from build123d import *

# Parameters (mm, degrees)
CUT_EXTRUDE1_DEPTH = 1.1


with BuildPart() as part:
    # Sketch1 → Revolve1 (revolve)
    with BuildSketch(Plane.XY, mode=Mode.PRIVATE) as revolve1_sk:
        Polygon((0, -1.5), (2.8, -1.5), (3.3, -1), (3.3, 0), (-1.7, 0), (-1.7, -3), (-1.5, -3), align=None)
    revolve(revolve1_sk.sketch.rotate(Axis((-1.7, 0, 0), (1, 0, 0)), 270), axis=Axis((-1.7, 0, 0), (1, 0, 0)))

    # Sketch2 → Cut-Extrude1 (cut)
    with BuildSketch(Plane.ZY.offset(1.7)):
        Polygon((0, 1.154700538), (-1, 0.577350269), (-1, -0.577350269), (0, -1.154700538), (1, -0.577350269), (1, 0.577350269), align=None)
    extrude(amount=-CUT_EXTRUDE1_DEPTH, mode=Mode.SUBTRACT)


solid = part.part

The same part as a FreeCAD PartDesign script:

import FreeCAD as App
import Part
import Sketcher
Q = App.Units.Quantity


def add_polygon(sketch, points):
    """Adds a closed chain of lines whose ends are joined by coincident constraints."""
    first, n = sketch.GeometryCount, len(points)
    for a, b in zip(points, points[1:] + points[:1]):
        sketch.addGeometry(Part.LineSegment(App.Vector(*a, 0), App.Vector(*b, 0)), False)
    for i in range(n):
        sketch.addConstraint(Sketcher.Constraint("Coincident", first + i, 2, first + (i + 1) % n, 1))

doc = App.newDocument("Part")
body = doc.addObject("PartDesign::Body", "Body")

sketch1 = doc.addObject("Sketcher::SketchObject", "Sketch")
body.addObject(sketch1)
sketch1.AttachmentSupport = (doc.XY_Plane, [""])
sketch1.MapMode = "FlatFace"
add_polygon(sketch1, [(0, -1.5), (2.8, -1.5), (3.3, -1), (3.3, 0), (-1.7, 0), (-1.7, -3), (-1.5, -3)])
sketch1.addConstraint(Sketcher.Constraint("Horizontal", 0))
sketch1.addConstraint(Sketcher.Constraint("Vertical", 2))
sketch1.addConstraint(Sketcher.Constraint("Horizontal", 3))
sketch1.addConstraint(Sketcher.Constraint("Vertical", 4))
sketch1.addConstraint(Sketcher.Constraint("Horizontal", 5))
sketch1.addConstraint(Sketcher.Constraint("PointOnObject", 2, 2, -1))
sketch1.addConstraint(Sketcher.Constraint("PointOnObject", 6, 2, -2))
sketch1.addConstraint(Sketcher.Constraint("Parallel", 1, 6))
sketch1.addConstraint(Sketcher.Constraint("DistanceX", 3, 2, 3, 1, Q("5 mm")))
sketch1.addConstraint(Sketcher.Constraint("DistanceY", 2, 1, 2, 2, Q("1 mm")))
sketch1.addConstraint(Sketcher.Constraint("DistanceY", 4, 2, 4, 1, Q("3 mm")))
sketch1.addConstraint(Sketcher.Constraint("Angle", 1, Q("45 deg")))
sketch1.addConstraint(Sketcher.Constraint("DistanceX", 0, 1, 0, 2, Q("2.8 mm")))
sketch1.addConstraint(Sketcher.Constraint("DistanceY", 0, 2, -1, 1, Q("1.5 mm")))
revolution = doc.addObject("PartDesign::Revolution", "Revolution")
body.addObject(revolution)
revolution.Profile = sketch1
revolution.ReferenceAxis = (sketch1, ["H_Axis"])
revolution.Angle = 360

sketch2 = doc.addObject("Sketcher::SketchObject", "Sketch001")
body.addObject(sketch2)
sketch2.AttachmentSupport = (doc.YZ_Plane, [""])
sketch2.MapMode = "FlatFace"
sketch2.AttachmentOffset = App.Placement(App.Vector(0, 0, -1.7), App.Rotation())
add_polygon(sketch2, [(1.2, 0), (0.6, -1), (-0.6, -1), (-1.2, 0), (-0.6, 1), (0.6, 1)])
sketch2.addConstraint(Sketcher.Constraint("Horizontal", 1))
sketch2.addConstraint(Sketcher.Constraint("Horizontal", 4))
sketch2.addConstraint(Sketcher.Constraint("Symmetric", 0, 2, 3, 2, -1, 1))
sketch2.addConstraint(Sketcher.Constraint("Symmetric", 2, 2, 5, 2, -1, 1))
sketch2.addConstraint(Sketcher.Constraint("PointOnObject", 2, 2, -1))
sketch2.addConstraint(Sketcher.Constraint("Parallel", 2, 5))
sketch2.addConstraint(Sketcher.Constraint("Vertical", 1, 2, 3, 2))
sketch2.addConstraint(Sketcher.Constraint("Angle", 0, Q("-120 deg")))
sketch2.addConstraint(Sketcher.Constraint("DistanceY", 0, 2, -1, 1, Q("1 mm")))
sketch2.addConstraint(Sketcher.Constraint("DistanceX", 1, 2, 1, 1, Q("1.154701 mm")))
pocket1 = doc.addObject("PartDesign::Pocket", "Pocket")
body.addObject(pocket1)
pocket1.Profile = sketch2
pocket1.Length = 1.1
pocket1.Reversed = True

doc.recompute()
